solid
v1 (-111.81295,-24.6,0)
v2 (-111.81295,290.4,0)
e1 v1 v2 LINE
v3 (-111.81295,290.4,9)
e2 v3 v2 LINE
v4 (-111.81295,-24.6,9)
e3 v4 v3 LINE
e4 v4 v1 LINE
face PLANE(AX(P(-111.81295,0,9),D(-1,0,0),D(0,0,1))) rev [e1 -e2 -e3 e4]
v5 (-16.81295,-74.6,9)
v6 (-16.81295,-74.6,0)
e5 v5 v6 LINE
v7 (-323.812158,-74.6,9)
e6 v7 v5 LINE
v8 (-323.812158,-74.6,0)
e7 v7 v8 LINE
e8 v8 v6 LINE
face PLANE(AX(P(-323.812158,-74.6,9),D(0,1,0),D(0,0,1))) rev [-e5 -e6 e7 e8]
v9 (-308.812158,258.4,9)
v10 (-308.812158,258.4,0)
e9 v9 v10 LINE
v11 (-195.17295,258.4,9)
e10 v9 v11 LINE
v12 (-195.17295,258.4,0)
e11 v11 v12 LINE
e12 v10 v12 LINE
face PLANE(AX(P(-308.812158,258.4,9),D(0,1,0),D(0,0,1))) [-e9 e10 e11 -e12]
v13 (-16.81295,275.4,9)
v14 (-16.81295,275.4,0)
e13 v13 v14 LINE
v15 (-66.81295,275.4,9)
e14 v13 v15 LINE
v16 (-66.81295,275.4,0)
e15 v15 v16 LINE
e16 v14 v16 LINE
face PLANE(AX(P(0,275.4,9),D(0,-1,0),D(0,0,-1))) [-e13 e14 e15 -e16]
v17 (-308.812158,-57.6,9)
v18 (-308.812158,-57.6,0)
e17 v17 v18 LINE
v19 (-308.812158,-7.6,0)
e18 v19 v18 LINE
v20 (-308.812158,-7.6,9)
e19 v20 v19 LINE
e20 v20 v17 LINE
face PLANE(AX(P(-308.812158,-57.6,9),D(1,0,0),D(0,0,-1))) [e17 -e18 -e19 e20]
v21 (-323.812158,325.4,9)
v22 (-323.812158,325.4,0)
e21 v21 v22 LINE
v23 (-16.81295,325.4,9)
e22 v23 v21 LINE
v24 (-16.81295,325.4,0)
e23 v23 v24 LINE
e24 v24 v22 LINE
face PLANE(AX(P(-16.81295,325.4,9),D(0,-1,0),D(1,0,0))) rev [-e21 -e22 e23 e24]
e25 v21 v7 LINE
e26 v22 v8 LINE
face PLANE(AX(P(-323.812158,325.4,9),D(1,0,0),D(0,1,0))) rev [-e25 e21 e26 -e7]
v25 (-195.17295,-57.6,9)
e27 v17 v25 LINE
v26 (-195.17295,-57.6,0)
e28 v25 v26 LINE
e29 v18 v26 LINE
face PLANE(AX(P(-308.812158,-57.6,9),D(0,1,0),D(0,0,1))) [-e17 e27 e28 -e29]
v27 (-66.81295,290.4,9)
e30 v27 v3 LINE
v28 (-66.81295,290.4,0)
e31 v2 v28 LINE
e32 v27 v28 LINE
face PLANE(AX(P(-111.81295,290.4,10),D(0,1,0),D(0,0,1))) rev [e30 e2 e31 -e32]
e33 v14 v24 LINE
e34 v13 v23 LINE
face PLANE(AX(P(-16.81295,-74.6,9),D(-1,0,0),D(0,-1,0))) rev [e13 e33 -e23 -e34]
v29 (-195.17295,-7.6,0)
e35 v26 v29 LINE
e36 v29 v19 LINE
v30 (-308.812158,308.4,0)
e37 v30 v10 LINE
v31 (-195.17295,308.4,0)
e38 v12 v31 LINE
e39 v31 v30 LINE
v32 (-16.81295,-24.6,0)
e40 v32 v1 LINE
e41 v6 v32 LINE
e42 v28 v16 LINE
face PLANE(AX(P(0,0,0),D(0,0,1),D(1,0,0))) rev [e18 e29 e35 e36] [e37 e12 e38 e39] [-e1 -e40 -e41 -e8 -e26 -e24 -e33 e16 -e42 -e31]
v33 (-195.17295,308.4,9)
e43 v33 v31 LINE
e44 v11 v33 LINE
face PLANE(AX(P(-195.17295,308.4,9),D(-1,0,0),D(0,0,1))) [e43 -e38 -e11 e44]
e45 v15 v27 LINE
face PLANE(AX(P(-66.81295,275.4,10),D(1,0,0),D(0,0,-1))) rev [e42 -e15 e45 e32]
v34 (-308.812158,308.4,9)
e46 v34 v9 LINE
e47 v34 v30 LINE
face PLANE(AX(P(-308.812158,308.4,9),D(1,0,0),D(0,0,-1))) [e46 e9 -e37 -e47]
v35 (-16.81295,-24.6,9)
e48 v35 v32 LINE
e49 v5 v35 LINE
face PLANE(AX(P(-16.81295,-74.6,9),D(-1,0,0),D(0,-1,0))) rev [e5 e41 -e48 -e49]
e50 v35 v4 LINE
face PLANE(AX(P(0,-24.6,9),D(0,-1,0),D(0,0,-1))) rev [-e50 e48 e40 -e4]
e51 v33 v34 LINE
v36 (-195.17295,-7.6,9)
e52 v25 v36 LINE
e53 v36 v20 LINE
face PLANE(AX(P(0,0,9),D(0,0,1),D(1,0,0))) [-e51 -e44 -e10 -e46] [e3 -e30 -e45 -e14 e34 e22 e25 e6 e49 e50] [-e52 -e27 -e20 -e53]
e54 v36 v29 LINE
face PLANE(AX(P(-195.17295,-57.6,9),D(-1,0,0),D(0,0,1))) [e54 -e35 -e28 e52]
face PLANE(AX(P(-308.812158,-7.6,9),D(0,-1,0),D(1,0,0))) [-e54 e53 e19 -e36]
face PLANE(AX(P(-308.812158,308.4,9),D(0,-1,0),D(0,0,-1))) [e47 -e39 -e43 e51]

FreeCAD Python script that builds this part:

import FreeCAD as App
import Part
import Sketcher

doc = App.newDocument("Part")
body = doc.addObject("PartDesign::Body", "Body")

# Sketch on XY plane
sketch1 = body.newObject("Sketcher::SketchObject", "Sketch")
sketch1.AttachmentSupport = (doc.getObject("XY_Plane"), [""])
sketch1.MapMode = "FlatFace"
sketch1.addGeometry([
    Part.LineSegment(App.Vector(-324, 325, 0), App.Vector(-324, -75, 0)),  # 0
    Part.LineSegment(App.Vector(-324, -75, 0), App.Vector(-17, -75, 0)),  # 1
    Part.LineSegment(App.Vector(-17, -75, 0), App.Vector(-17, 325, 0)),  # 2
    Part.LineSegment(App.Vector(-17, 325, 0), App.Vector(-324, 325, 0)),  # 3
    Part.LineSegment(App.Vector(-195, -58, 0), App.Vector(-309, -58, 0)),  # 4
    Part.LineSegment(App.Vector(-309, -58, 0), App.Vector(-309, -8, 0)),  # 5
    Part.LineSegment(App.Vector(-309, -8, 0), App.Vector(-195, -8, 0)),  # 6
    Part.LineSegment(App.Vector(-195, -8, 0), App.Vector(-195, -58, 0)),  # 7
    Part.LineSegment(App.Vector(-195, 258, 0), App.Vector(-309, 258, 0)),  # 8
    Part.LineSegment(App.Vector(-309, 258, 0), App.Vector(-309, 308, 0)),  # 9
    Part.LineSegment(App.Vector(-309, 308, 0), App.Vector(-195, 308, 0)),  # 10
    Part.LineSegment(App.Vector(-195, 308, 0), App.Vector(-195, 258, 0)),  # 11
], False)
sketch1.addConstraint([
    Sketcher.Constraint("Coincident", 0, 2, 1, 1),
    Sketcher.Constraint("Coincident", 1, 2, 2, 1),
    Sketcher.Constraint("Coincident", 2, 2, 3, 1),
    Sketcher.Constraint("Coincident", 3, 2, 0, 1),
    Sketcher.Constraint("Coincident", 4, 2, 5, 1),
    Sketcher.Constraint("Coincident", 5, 2, 6, 1),
    Sketcher.Constraint("Coincident", 6, 2, 7, 1),
    Sketcher.Constraint("Coincident", 7, 2, 4, 1),
    Sketcher.Constraint("Coincident", 8, 2, 9, 1),
    Sketcher.Constraint("Coincident", 9, 2, 10, 1),
    Sketcher.Constraint("Coincident", 10, 2, 11, 1),
    Sketcher.Constraint("Coincident", 11, 2, 8, 1),
    Sketcher.Constraint("Vertical", 0),
    Sketcher.Constraint("Horizontal", 1),
    Sketcher.Constraint("Vertical", 2),
    Sketcher.Constraint("Horizontal", 3),
    Sketcher.Constraint("Horizontal", 4),
    Sketcher.Constraint("Vertical", 5),
    Sketcher.Constraint("Horizontal", 6),
    Sketcher.Constraint("Vertical", 7),
    Sketcher.Constraint("Horizontal", 8),
    Sketcher.Constraint("Vertical", 9),
    Sketcher.Constraint("Horizontal", 10),
    Sketcher.Constraint("Vertical", 11),
    Sketcher.Constraint("Vertical", 5, 2, 8, 2),
    Sketcher.Constraint("Vertical", 7, 2, 10, 2),
    Sketcher.Constraint("Equal", 7, 9),
    Sketcher.Constraint("DistanceY", 0, 2, 0, 1, 400.0),
    Sketcher.Constraint("DistanceY", 5, 1, 5, 2, 50.0),
    Sketcher.Constraint("DistanceX", 0, 2, 4, 2, 15.0),
    Sketcher.Constraint("DistanceY", 0, 2, 4, 2, 17.0),
    Sketcher.Constraint("DistanceY", 8, 2, 3, 2, 67.0),
    Sketcher.Constraint("DistanceY", 0, 2, -1, 1, 74.6),
    Sketcher.Constraint("DistanceX", 6, 2, 1, 2, 178.36),
    Sketcher.Constraint("DistanceX", 1, 1, 1, 2, 306.999209),
    Sketcher.Constraint("DistanceX", 0, 2, -1, 1, 323.812158),
])
pad1 = body.newObject("PartDesign::Pad", "Pad")
pad1.Profile = sketch1
pad1.Length = 9

# Sketch on XY plane
sketch2 = body.newObject("Sketcher::SketchObject", "Sketch001")
sketch2.AttachmentSupport = (doc.getObject("XY_Plane"), [""])
sketch2.MapMode = "FlatFace"
sketch2.addGeometry([
    Part.LineSegment(App.Vector(-17, 275, 0), App.Vector(-17, -25, 0)),
    Part.LineSegment(App.Vector(-17, -25, 0), App.Vector(-112, -25, 0)),
    Part.LineSegment(App.Vector(-112, -25, 0), App.Vector(-112, 275, 0)),
    Part.LineSegment(App.Vector(-112, 275, 0), App.Vector(-17, 275, 0)),
], False)
sketch2.addConstraint([
    Sketcher.Constraint("Coincident", 0, 2, 1, 1),
    Sketcher.Constraint("Coincident", 1, 2, 2, 1),
    Sketcher.Constraint("Coincident", 2, 2, 3, 1),
    Sketcher.Constraint("Coincident", 3, 2, 0, 1),
    Sketcher.Constraint("Vertical", 0),
    Sketcher.Constraint("Horizontal", 1),
    Sketcher.Constraint("Vertical", 2),
    Sketcher.Constraint("Horizontal", 3),
    Sketcher.Constraint("DistanceX", 1, 2, 1, 1, 95.0),
    Sketcher.Constraint("DistanceY", 0, 2, 0, 1, 300.0),
    Sketcher.Constraint("DistanceY", 0, 2, -1, 1, 24.6),
    Sketcher.Constraint("DistanceX", 0, 2, -1, 1, 16.81295),
])
pocket1 = body.newObject("PartDesign::Pocket", "Pocket")
pocket1.Profile = sketch2
pocket1.Type = "ThroughAll"
pocket1.Reversed = True

# Sketch on XY plane
sketch3 = body.newObject("Sketcher::SketchObject", "Sketch002")
sketch3.AttachmentSupport = (doc.getObject("XY_Plane"), [""])
sketch3.MapMode = "FlatFace"
sketch3.addGeometry([
    Part.LineSegment(App.Vector(-67, 290, 0), App.Vector(-67, 275, 0)),
    Part.LineSegment(App.Vector(-67, 275, 0), App.Vector(-112, 275, 0)),
    Part.LineSegment(App.Vector(-112, 275, 0), App.Vector(-112, 290, 0)),
    Part.LineSegment(App.Vector(-112, 290, 0), App.Vector(-67, 290, 0)),
], False)
sketch3.addConstraint([
    Sketcher.Constraint("Coincident", 0, 2, 1, 1),
    Sketcher.Constraint("Coincident", 1, 2, 2, 1),
    Sketcher.Constraint("Coincident", 2, 2, 3, 1),
    Sketcher.Constraint("Coincident", 3, 2, 0, 1),
    Sketcher.Constraint("Vertical", 0),
    Sketcher.Constraint("Horizontal", 1),
    Sketcher.Constraint("Vertical", 2),
    Sketcher.Constraint("Horizontal", 3),
    Sketcher.Constraint("DistanceX", 1, 2, 1, 1, 45.0),
    Sketcher.Constraint("DistanceY", 0, 2, 0, 1, 15.0),
    Sketcher.Constraint("DistanceY", -1, 1, 0, 2, 275.4),
    Sketcher.Constraint("DistanceX", 0, 2, -1, 1, 66.81295),
])
pocket2 = body.newObject("PartDesign::Pocket", "Pocket001")
pocket2.Profile = sketch3
pocket2.Length = 10
pocket2.Reversed = True

doc.recompute()
